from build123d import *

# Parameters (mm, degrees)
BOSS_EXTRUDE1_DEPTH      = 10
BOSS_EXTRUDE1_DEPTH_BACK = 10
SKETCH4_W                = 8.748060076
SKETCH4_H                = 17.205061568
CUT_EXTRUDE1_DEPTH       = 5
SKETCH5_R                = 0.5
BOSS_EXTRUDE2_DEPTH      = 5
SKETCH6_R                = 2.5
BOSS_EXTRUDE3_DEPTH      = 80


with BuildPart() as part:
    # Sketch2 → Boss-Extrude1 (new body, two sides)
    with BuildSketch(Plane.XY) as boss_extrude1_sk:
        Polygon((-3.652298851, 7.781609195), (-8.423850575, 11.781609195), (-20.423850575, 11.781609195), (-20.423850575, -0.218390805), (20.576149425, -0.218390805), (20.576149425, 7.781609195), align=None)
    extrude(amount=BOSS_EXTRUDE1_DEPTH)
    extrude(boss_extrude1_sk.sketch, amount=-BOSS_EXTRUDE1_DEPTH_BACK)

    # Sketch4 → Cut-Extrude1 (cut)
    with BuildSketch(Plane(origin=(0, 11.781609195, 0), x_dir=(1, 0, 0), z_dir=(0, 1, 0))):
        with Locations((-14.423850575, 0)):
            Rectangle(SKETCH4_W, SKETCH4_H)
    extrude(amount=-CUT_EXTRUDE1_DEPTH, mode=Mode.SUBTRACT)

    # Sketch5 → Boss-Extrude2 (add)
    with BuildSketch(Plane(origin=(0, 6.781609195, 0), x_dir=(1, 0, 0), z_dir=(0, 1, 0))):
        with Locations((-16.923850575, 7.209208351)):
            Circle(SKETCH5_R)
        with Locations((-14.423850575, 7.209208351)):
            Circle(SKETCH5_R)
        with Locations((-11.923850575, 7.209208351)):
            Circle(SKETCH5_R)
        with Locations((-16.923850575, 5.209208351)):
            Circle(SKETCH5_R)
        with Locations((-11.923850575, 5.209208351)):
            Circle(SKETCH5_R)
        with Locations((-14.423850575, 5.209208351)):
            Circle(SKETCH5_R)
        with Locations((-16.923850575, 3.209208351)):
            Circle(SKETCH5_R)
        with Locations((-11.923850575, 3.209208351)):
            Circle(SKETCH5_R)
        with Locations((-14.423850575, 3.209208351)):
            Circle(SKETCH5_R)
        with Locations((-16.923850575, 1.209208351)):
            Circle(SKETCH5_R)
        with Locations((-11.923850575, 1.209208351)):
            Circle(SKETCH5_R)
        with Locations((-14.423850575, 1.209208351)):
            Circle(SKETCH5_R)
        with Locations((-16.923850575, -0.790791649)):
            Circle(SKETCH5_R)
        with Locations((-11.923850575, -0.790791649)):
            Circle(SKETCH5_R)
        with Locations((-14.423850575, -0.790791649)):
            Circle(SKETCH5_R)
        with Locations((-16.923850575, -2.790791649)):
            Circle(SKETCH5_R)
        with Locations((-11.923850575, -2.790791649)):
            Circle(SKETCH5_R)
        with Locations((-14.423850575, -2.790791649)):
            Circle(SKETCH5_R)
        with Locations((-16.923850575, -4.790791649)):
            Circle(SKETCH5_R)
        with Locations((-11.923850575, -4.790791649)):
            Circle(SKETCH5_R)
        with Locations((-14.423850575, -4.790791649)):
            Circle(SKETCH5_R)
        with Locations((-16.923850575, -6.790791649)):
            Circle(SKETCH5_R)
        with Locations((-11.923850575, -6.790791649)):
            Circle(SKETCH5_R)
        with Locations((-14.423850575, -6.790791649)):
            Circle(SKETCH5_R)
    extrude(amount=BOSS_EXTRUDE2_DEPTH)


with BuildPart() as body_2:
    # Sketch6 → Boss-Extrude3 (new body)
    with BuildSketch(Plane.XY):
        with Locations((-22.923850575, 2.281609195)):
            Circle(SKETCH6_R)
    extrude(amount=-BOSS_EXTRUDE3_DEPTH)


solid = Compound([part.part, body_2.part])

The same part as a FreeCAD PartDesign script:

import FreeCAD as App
import Part
import Sketcher


def add_polygon(sketch, points):
    """Adds a closed chain of lines whose ends are joined by coincident constraints."""
    first, n = sketch.GeometryCount, len(points)
    for a, b in zip(points, points[1:] + points[:1]):
        sketch.addGeometry(Part.LineSegment(App.Vector(*a, 0), App.Vector(*b, 0)), False)
    for i in range(n):
        sketch.addConstraint(Sketcher.Constraint("Coincident", first + i, 2, first + (i + 1) % n, 1))

doc = App.newDocument("Part")
body = doc.addObject("PartDesign::Body", "Body")

sketch1 = doc.addObject("Sketcher::SketchObject", "Sketch")
body.addObject(sketch1)
sketch1.AttachmentSupport = (doc.XY_Plane, [""])
sketch1.MapMode = "FlatFace"
add_polygon(sketch1, [(-4, 8), (-8, 12), (-20, 12), (-20, 0), (21, 0), (21, 8)])
sketch1.addConstraint(Sketcher.Constraint("Horizontal", 1))
sketch1.addConstraint(Sketcher.Constraint("Vertical", 2))
sketch1.addConstraint(Sketcher.Constraint("Horizontal", 3))
sketch1.addConstraint(Sketcher.Constraint("Vertical", 4))
sketch1.addConstraint(Sketcher.Constraint("Horizontal", 5))
sketch1.addConstraint(Sketcher.Constraint("Equal", 1, 2))
sketch1.addConstraint(Sketcher.Constraint("DistanceX", 1, 2, 1, 1, 12.0))
sketch1.addConstraint(Sketcher.Constraint("DistanceX", 3, 1, 3, 2, 41.0))
sketch1.addConstraint(Sketcher.Constraint("DistanceY", 4, 1, 4, 2, 8.0))
sketch1.addConstraint(Sketcher.Constraint("DistanceX", 5, 2, 5, 1, 24.228448))
sketch1.addConstraint(Sketcher.Constraint("DistanceX", 5, 2, -1, 1, 3.652299))
sketch1.addConstraint(Sketcher.Constraint("DistanceY", -1, 1, 0, 2, 11.781609))
pad1 = doc.addObject("PartDesign::Pad", "Pad")
body.addObject(pad1)
pad1.Profile = sketch1
pad1.Type = "TwoLengths"
pad1.Length = 10
pad1.Length2 = 10

sketch2 = doc.addObject("Sketcher::SketchObject", "Sketch001")
body.addObject(sketch2)
sketch2.AttachmentSupport = (doc.XZ_Plane, [""])
sketch2.MapMode = "FlatFace"
sketch2.AttachmentOffset = App.Placement(App.Vector(0, 0, -11.781609), App.Rotation())
add_polygon(sketch2, [(-19, -9), (-19, 9), (-10, 9), (-10, -9)])
sketch2.addConstraint(Sketcher.Constraint("Vertical", 0))
sketch2.addConstraint(Sketcher.Constraint("Horizontal", 1))
sketch2.addConstraint(Sketcher.Constraint("Vertical", 2))
sketch2.addConstraint(Sketcher.Constraint("Horizontal", 3))
sketch2.addConstraint(Sketcher.Constraint("DistanceX", 1, 1, 1, 2, 8.74806))
sketch2.addConstraint(Sketcher.Constraint("DistanceY", 0, 1, 0, 2, 17.205062))
sketch2.addConstraint(Sketcher.Constraint("DistanceX", 0, 2, -1, 1, 18.797881))
sketch2.addConstraint(Sketcher.Constraint("DistanceY", -1, 1, 0, 2, 8.602531))
pocket1 = doc.addObject("PartDesign::Pocket", "Pocket")
body.addObject(pocket1)
pocket1.Profile = sketch2
pocket1.Length = 5
pocket1.Reversed = True

sketch3 = doc.addObject("Sketcher::SketchObject", "Sketch002")
body.addObject(sketch3)
sketch3.AttachmentSupport = (doc.XZ_Plane, [""])
sketch3.MapMode = "FlatFace"
sketch3.AttachmentOffset = App.Placement(App.Vector(0, 0, -6.781609), App.Rotation())
sketch3.addGeometry(Part.Circle(App.Vector(-16.9, -7.2, 0), App.Vector(0, 0, 1), 0.5), False)
sketch3.addGeometry(Part.Circle(App.Vector(-14.4, -7.2, 0), App.Vector(0, 0, 1), 0.5), False)
sketch3.addGeometry(Part.Circle(App.Vector(-11.9, -7.2, 0), App.Vector(0, 0, 1), 0.5), False)
sketch3.addGeometry(Part.Circle(App.Vector(-16.9, -5.2, 0), App.Vector(0, 0, 1), 0.5), False)
sketch3.addGeometry(Part.Circle(App.Vector(-11.9, -5.2, 0), App.Vector(0, 0, 1), 0.5), False)
sketch3.addGeometry(Part.Circle(App.Vector(-14.4, -5.2, 0), App.Vector(0, 0, 1), 0.5), False)
sketch3.addGeometry(Part.Circle(App.Vector(-16.9, -3.2, 0), App.Vector(0, 0, 1), 0.5), False)
sketch3.addGeometry(Part.Circle(App.Vector(-11.9, -3.2, 0), App.Vector(0, 0, 1), 0.5), False)
sketch3.addGeometry(Part.Circle(App.Vector(-14.4, -3.2, 0), App.Vector(0, 0, 1), 0.5), False)
sketch3.addGeometry(Part.Circle(App.Vector(-16.9, -1.2, 0), App.Vector(0, 0, 1), 0.5), False)
sketch3.addGeometry(Part.Circle(App.Vector(-11.9, -1.2, 0), App.Vector(0, 0, 1), 0.5), False)
sketch3.addGeometry(Part.Circle(App.Vector(-14.4, -1.2, 0), App.Vector(0, 0, 1), 0.5), False)
sketch3.addGeometry(Part.Circle(App.Vector(-16.9, 0.8, 0), App.Vector(0, 0, 1), 0.5), False)
sketch3.addGeometry(Part.Circle(App.Vector(-11.9, 0.8, 0), App.Vector(0, 0, 1), 0.5), False)
sketch3.addGeometry(Part.Circle(App.Vector(-14.4, 0.8, 0), App.Vector(0, 0, 1), 0.5), False)
sketch3.addGeometry(Part.Circle(App.Vector(-16.9, 2.8, 0), App.Vector(0, 0, 1), 0.5), False)
sketch3.addGeometry(Part.Circle(App.Vector(-11.9, 2.8, 0), App.Vector(0, 0, 1), 0.5), False)
sketch3.addGeometry(Part.Circle(App.Vector(-14.4, 2.8, 0), App.Vector(0, 0, 1), 0.5), False)
sketch3.addGeometry(Part.Circle(App.Vector(-16.9, 4.8, 0), App.Vector(0, 0, 1), 0.5), False)
sketch3.addGeometry(Part.Circle(App.Vector(-11.9, 4.8, 0), App.Vector(0, 0, 1), 0.5), False)
sketch3.addGeometry(Part.Circle(App.Vector(-14.4, 4.8, 0), App.Vector(0, 0, 1), 0.5), False)
sketch3.addGeometry(Part.Circle(App.Vector(-16.9, 6.8, 0), App.Vector(0, 0, 1), 0.5), False)
sketch3.addGeometry(Part.Circle(App.Vector(-11.9, 6.8, 0), App.Vector(0, 0, 1), 0.5), False)
sketch3.addGeometry(Part.Circle(App.Vector(-14.4, 6.8, 0), App.Vector(0, 0, 1), 0.5), False)
sketch3.addConstraint(Sketcher.Constraint("Equal", 0, 1))
sketch3.addConstraint(Sketcher.Constraint("Equal", 1, 2))
sketch3.addConstraint(Sketcher.Constraint("Equal", 2, 3))
sketch3.addConstraint(Sketcher.Constraint("Equal", 3, 4))
sketch3.addConstraint(Sketcher.Constraint("Equal", 4, 5))
sketch3.addConstraint(Sketcher.Constraint("Equal", 5, 6))
sketch3.addConstraint(Sketcher.Constraint("Equal", 6, 7))
sketch3.addConstraint(Sketcher.Constraint("Equal", 7, 8))
sketch3.addConstraint(Sketcher.Constraint("Equal", 8, 9))
sketch3.addConstraint(Sketcher.Constraint("Equal", 9, 10))
sketch3.addConstraint(Sketcher.Constraint("Equal", 10, 11))
sketch3.addConstraint(Sketcher.Constraint("Equal", 11, 12))
sketch3.addConstraint(Sketcher.Constraint("Equal", 12, 13))
sketch3.addConstraint(Sketcher.Constraint("Equal", 13, 14))
sketch3.addConstraint(Sketcher.Constraint("Equal", 14, 15))
sketch3.addConstraint(Sketcher.Constraint("Equal", 15, 16))
sketch3.addConstraint(Sketcher.Constraint("Equal", 16, 17))
sketch3.addConstraint(Sketcher.Constraint("Equal", 17, 18))
sketch3.addConstraint(Sketcher.Constraint("Equal", 18, 19))
sketch3.addConstraint(Sketcher.Constraint("Equal", 19, 20))
sketch3.addConstraint(Sketcher.Constraint("Equal", 20, 21))
sketch3.addConstraint(Sketcher.Constraint("Equal", 21, 22))
sketch3.addConstraint(Sketcher.Constraint("Equal", 22, 23))
sketch3.addConstraint(Sketcher.Constraint("Horizontal", 0, 3, 1, 3))
sketch3.addConstraint(Sketcher.Constraint("Horizontal", 1, 3, 2, 3))
sketch3.addConstraint(Sketcher.Constraint("Horizontal", 3, 3, 4, 3))
sketch3.addConstraint(Sketcher.Constraint("Horizontal", 4, 3, 5, 3))
sketch3.addConstraint(Sketcher.Constraint("Horizontal", 6, 3, 7, 3))
sketch3.addConstraint(Sketcher.Constraint("Horizontal", 7, 3, 8, 3))
sketch3.addConstraint(Sketcher.Constraint("Horizontal", 9, 3, 10, 3))
sketch3.addConstraint(Sketcher.Constraint("Horizontal", 10, 3, 11, 3))
sketch3.addConstraint(Sketcher.Constraint("Horizontal", 12, 3, 13, 3))
sketch3.addConstraint(Sketcher.Constraint("Horizontal", 13, 3, 14, 3))
sketch3.addConstraint(Sketcher.Constraint("Horizontal", 15, 3, 16, 3))
sketch3.addConstraint(Sketcher.Constraint("Horizontal", 16, 3, 17, 3))
sketch3.addConstraint(Sketcher.Constraint("Horizontal", 18, 3, 19, 3))
sketch3.addConstraint(Sketcher.Constraint("Horizontal", 19, 3, 20, 3))
sketch3.addConstraint(Sketcher.Constraint("Horizontal", 21, 3, 22, 3))
sketch3.addConstraint(Sketcher.Constraint("Horizontal", 22, 3, 23, 3))
sketch3.addConstraint(Sketcher.Constraint("Vertical", 0, 3, 3, 3))
sketch3.addConstraint(Sketcher.Constraint("Vertical", 2, 3, 4, 3))
sketch3.addConstraint(Sketcher.Constraint("Vertical", 1, 3, 5, 3))
sketch3.addConstraint(Sketcher.Constraint("Vertical", 3, 3, 6, 3))
sketch3.addConstraint(Sketcher.Constraint("Vertical", 4, 3, 7, 3))
sketch3.addConstraint(Sketcher.Constraint("Vertical", 5, 3, 8, 3))
sketch3.addConstraint(Sketcher.Constraint("Vertical", 6, 3, 9, 3))
sketch3.addConstraint(Sketcher.Constraint("Vertical", 7, 3, 10, 3))
sketch3.addConstraint(Sketcher.Constraint("Vertical", 8, 3, 11, 3))
sketch3.addConstraint(Sketcher.Constraint("Vertical", 9, 3, 12, 3))
sketch3.addConstraint(Sketcher.Constraint("Vertical", 10, 3, 13, 3))
sketch3.addConstraint(Sketcher.Constraint("Vertical", 11, 3, 14, 3))
sketch3.addConstraint(Sketcher.Constraint("Vertical", 12, 3, 15, 3))
sketch3.addConstraint(Sketcher.Constraint("Vertical", 13, 3, 16, 3))
sketch3.addConstraint(Sketcher.Constraint("Vertical", 14, 3, 17, 3))
sketch3.addConstraint(Sketcher.Constraint("Vertical", 15, 3, 18, 3))
sketch3.addConstraint(Sketcher.Constraint("Vertical", 16, 3, 19, 3))
sketch3.addConstraint(Sketcher.Constraint("Vertical", 17, 3, 20, 3))
sketch3.addConstraint(Sketcher.Constraint("Vertical", 18, 3, 21, 3))
sketch3.addConstraint(Sketcher.Constraint("Vertical", 19, 3, 22, 3))
sketch3.addConstraint(Sketcher.Constraint("Vertical", 20, 3, 23, 3))
sketch3.addConstraint(Sketcher.Constraint("Diameter", 0, 1.0))
sketch3.addConstraint(Sketcher.Constraint("DistanceX", 0, 3, 2, 3, 5.0))
sketch3.addConstraint(Sketcher.Constraint("DistanceY", 0, 3, 3, 3, 2.0))
sketch3.addConstraint(Sketcher.Constraint("DistanceY", 3, 3, 6, 3, 2.0))
sketch3.addConstraint(Sketcher.Constraint("DistanceY", 6, 3, 9, 3, 2.0))
sketch3.addConstraint(Sketcher.Constraint("DistanceY", 9, 3, 12, 3, 2.0))
sketch3.addConstraint(Sketcher.Constraint("DistanceY", 12, 3, 15, 3, 2.0))
sketch3.addConstraint(Sketcher.Constraint("DistanceY", 15, 3, 18, 3, 2.0))
sketch3.addConstraint(Sketcher.Constraint("DistanceY", 18, 3, 21, 3, 2.0))
sketch3.addConstraint(Sketcher.Constraint("DistanceX", 0, 3, 1, 3, 2.5))
sketch3.addConstraint(Sketcher.Constraint("DistanceX", 0, 3, -1, 1, 16.923851))
sketch3.addConstraint(Sketcher.Constraint("DistanceY", 0, 3, -1, 1, 7.209208))
pad2 = doc.addObject("PartDesign::Pad", "Pad001")
body.addObject(pad2)
pad2.Profile = sketch3
pad2.Length = 5
pad2.Reversed = True
body2 = doc.addObject("PartDesign::Body", "Body001")

sketch4 = doc.addObject("Sketcher::SketchObject", "Sketch003")
body2.addObject(sketch4)
sketch4.AttachmentSupport = (doc.getObject("XY_Plane001"), [""])
sketch4.MapMode = "FlatFace"
sketch4.addGeometry(Part.Circle(App.Vector(-22.9, 2.3, 0), App.Vector(0, 0, 1), 2.5), False)
sketch4.addConstraint(Sketcher.Constraint("Diameter", 0, 5.0))
sketch4.addConstraint(Sketcher.Constraint("DistanceX", 0, 3, -1, 1, 22.923851))
sketch4.addConstraint(Sketcher.Constraint("DistanceY", -1, 1, 0, 3, 2.281609))
pad3 = doc.addObject("PartDesign::Pad", "Pad002")
body2.addObject(pad3)
pad3.Profile = sketch4
pad3.Length = 80
pad3.Reversed = True

doc.recompute()
